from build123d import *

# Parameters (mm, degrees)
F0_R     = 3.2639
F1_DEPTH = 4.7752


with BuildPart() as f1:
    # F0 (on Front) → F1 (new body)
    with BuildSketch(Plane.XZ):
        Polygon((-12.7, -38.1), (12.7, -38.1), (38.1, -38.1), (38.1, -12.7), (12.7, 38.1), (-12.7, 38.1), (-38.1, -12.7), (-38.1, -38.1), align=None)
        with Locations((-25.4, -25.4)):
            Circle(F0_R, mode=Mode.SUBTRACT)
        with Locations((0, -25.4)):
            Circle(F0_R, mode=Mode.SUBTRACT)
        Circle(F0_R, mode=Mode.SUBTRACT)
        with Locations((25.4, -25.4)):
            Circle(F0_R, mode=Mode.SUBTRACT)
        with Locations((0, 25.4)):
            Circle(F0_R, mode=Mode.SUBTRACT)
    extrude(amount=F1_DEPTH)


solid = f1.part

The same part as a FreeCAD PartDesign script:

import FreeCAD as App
import Part
import Sketcher

V = App.Vector
Q = App.Units.Quantity


def add_polygon(sketch, points):
    """Adds a closed chain of lines whose ends are joined by coincident constraints."""
    first, n = sketch.GeometryCount, len(points)
    for a, b in zip(points, points[1:] + points[:1]):
        sketch.addGeometry(Part.LineSegment(App.Vector(*a, 0), App.Vector(*b, 0)), False)
    for i in range(n):
        sketch.addConstraint(Sketcher.Constraint("Coincident", first + i, 2, first + (i + 1) % n, 1))

doc = App.newDocument("Part")
body = doc.addObject("PartDesign::Body", "Body")

# Sketch on XZ plane
sketch1 = doc.addObject("Sketcher::SketchObject", "Sketch")
body.addObject(sketch1)
sketch1.AttachmentSupport = (doc.XZ_Plane, [""])
sketch1.MapMode = "FlatFace"
add_polygon(sketch1, [(38.1, -38.1), (38.1, -12.7), (12.7, 38.1), (-12.7, 38.1), (-38.1, -12.7), (-38.1, -38.1)])  # lines 0-5
sketch1.addGeometry(Part.Circle(V(-25.4, -25.4, 0), V(0, 0, 1), 3.3), False)  # 6
sketch1.addGeometry(Part.Circle(V(0, -25.4, 0), V(0, 0, 1), 3.3), False)  # 7
sketch1.addGeometry(Part.Circle(V(25.4, -25.4, 0), V(0, 0, 1), 3.3), False)  # 8
sketch1.addGeometry(Part.Circle(V(0, 0, 0), V(0, 0, 1), 3.3), False)  # 9
sketch1.addGeometry(Part.Circle(V(0, 25.4, 0), V(0, 0, 1), 3.3), False)  # 10
sketch1.addConstraint([
    Sketcher.Constraint("Vertical", 0),
    Sketcher.Constraint("Horizontal", 2),
    Sketcher.Constraint("Vertical", 4),
    Sketcher.Constraint("Horizontal", 5),
    Sketcher.Constraint("Coincident", 9, 3, -1, 1),
    Sketcher.Constraint("Equal", 6, 7),
    Sketcher.Constraint("Equal", 7, 8),
    Sketcher.Constraint("Equal", 8, 9),
    Sketcher.Constraint("Equal", 9, 10),
    Sketcher.Constraint("Symmetric", 7, 3, 10, 3, -1, 1),
    Sketcher.Constraint("Symmetric", 6, 3, 8, 3, -2),
    Sketcher.Constraint("Symmetric", 0, 2, 3, 2, -2),
    Sketcher.Constraint("PointOnObject", 7, 3, -2),
    Sketcher.Constraint("Horizontal", 6, 3, 7, 3),
    Sketcher.Constraint("Equal", 2, 0),
    Sketcher.Constraint("Equal", 1, 3),
    Sketcher.Constraint("DistanceX", 2, 2, 2, 1, Q("1 in")),
    Sketcher.Constraint("DistanceX", 5, 1, 5, 2, Q("3 in")),
    Sketcher.Constraint("Diameter", 6, Q("0.257 in")),
    Sketcher.Constraint("DistanceX", 6, 3, -1, 1, Q("1 in")),
    Sketcher.Constraint("DistanceY", 6, 3, -1, 1, Q("1 in")),
    Sketcher.Constraint("DistanceY", 0, 2, 1, 2, Q("2 in")),
    Sketcher.Constraint("DistanceY", 0, 2, -1, 1, Q("0.5 in")),
])
pad1 = doc.addObject("PartDesign::Pad", "Pad")
body.addObject(pad1)
pad1.Profile = sketch1
pad1.Length = Q("0.188 in")

doc.recompute()
